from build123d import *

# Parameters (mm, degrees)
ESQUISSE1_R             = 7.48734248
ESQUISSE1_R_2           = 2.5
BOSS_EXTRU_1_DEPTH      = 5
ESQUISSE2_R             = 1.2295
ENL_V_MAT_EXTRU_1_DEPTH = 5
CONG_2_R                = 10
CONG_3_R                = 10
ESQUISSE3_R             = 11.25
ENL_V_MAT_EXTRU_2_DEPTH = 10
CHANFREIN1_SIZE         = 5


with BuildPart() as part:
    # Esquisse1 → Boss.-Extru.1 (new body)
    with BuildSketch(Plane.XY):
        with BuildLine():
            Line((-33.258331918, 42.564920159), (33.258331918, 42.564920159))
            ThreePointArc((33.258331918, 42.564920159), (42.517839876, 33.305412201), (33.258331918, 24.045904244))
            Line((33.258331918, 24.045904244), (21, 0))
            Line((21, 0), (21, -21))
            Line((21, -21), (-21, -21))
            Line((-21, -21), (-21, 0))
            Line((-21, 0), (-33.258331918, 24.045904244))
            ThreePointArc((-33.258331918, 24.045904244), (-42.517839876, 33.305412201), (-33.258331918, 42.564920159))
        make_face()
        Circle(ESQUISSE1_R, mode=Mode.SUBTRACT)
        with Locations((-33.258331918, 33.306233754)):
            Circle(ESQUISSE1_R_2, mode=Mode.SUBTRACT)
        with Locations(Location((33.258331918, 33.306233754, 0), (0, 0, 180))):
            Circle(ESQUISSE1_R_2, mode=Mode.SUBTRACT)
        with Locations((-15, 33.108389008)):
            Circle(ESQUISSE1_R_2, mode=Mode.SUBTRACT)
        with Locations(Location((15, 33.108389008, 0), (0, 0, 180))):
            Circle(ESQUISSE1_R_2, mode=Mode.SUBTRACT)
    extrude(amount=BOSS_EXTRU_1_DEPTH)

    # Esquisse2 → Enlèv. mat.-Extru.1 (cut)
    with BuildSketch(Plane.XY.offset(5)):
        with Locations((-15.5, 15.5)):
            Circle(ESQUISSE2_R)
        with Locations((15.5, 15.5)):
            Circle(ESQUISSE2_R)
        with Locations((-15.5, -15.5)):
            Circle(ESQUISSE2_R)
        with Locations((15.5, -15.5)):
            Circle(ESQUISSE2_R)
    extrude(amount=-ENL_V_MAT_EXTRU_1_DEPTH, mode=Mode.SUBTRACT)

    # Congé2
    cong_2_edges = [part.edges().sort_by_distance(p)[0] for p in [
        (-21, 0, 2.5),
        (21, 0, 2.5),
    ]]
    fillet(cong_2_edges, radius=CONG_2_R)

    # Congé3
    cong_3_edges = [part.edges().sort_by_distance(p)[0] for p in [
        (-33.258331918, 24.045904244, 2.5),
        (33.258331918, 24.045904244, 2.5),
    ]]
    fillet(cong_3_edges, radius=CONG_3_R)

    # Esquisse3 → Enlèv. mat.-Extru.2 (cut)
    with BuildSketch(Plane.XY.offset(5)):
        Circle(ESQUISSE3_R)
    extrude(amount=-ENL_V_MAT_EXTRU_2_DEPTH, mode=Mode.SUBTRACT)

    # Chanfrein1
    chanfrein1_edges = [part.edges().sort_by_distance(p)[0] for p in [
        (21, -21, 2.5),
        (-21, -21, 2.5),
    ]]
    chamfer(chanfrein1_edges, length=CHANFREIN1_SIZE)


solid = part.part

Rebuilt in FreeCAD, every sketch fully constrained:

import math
import FreeCAD as App
import Part
import Sketcher

V = App.Vector
Q = App.Units.Quantity


def edges_at(feature, points):
    """Names of the edges that pass closest to the given points."""
    edges = feature.Shape.Edges
    near = lambda p: min(range(len(edges)), key=lambda i: edges[i].distToShape(Part.Vertex(*p))[0])
    return sorted({f"Edge{near(p) + 1}" for p in points})

doc = App.newDocument("Part")
body = doc.addObject("PartDesign::Body", "Body")

# Sketch on XY plane
sketch1 = doc.addObject("Sketcher::SketchObject", "Sketch")
body.addObject(sketch1)
sketch1.AttachmentSupport = (doc.XY_Plane, [""])
sketch1.MapMode = "FlatFace"
sketch1.addGeometry([
    Part.LineSegment(V(33.258332, 42.56492, 0), V(-33.258332, 42.56492, 0)),  # 0
    Part.ArcOfCircle(Part.Circle(V(-33.258332, 33.305412, 0), V(0, 0, 1), 9.259508), math.radians(90), math.radians(270)),  # 1
    Part.LineSegment(V(-33.258332, 24.045904, 0), V(-21, 0, 0)),  # 2
    Part.LineSegment(V(-21, 0, 0), V(-21, -21, 0)),  # 3
    Part.LineSegment(V(-21, -21, 0), V(21, -21, 0)),  # 4
    Part.LineSegment(V(21, -21, 0), V(21, 0, 0)),  # 5
    Part.LineSegment(V(21, 0, 0), V(33.258332, 24.045904, 0)),  # 6
    Part.ArcOfCircle(Part.Circle(V(33.258332, 33.305412, 0), V(0, 0, 1), 9.259508), math.radians(-90), math.radians(90)),  # 7
    Part.Circle(V(0, 0, 0), V(0, 0, 1), 7.487342),  # 8
    Part.Circle(V(33.258332, 33.306234, 0), V(0, 0, 1), 2.5),  # 9
    Part.Circle(V(15, 33.108389, 0), V(0, 0, 1), 2.5),  # 10
    Part.Circle(V(-15, 33.108389, 0), V(0, 0, 1), 2.5),  # 11
    Part.Circle(V(-33.258332, 33.306234, 0), V(0, 0, 1), 2.5),  # 12
], False)
sketch1.addConstraint([
    Sketcher.Constraint("Tangent", 0, 2, 1, 1),
    Sketcher.Constraint("Coincident", 1, 2, 2, 1),
    Sketcher.Constraint("Coincident", 2, 2, 3, 1),
    Sketcher.Constraint("Coincident", 3, 2, 4, 1),
    Sketcher.Constraint("Coincident", 4, 2, 5, 1),
    Sketcher.Constraint("Coincident", 5, 2, 6, 1),
    Sketcher.Constraint("Coincident", 6, 2, 7, 1),
    Sketcher.Constraint("Tangent", 7, 2, 0, 1),
    Sketcher.Constraint("Horizontal", 0),
    Sketcher.Constraint("Vertical", 3),
    Sketcher.Constraint("Horizontal", 4),
    Sketcher.Constraint("Vertical", 5),
    Sketcher.Constraint("Coincident", 8, 3, -1, 1),
    Sketcher.Constraint("Equal", 1, 7),
    Sketcher.Constraint("Equal", 9, 10),
    Sketcher.Constraint("Equal", 10, 11),
    Sketcher.Constraint("Equal", 11, 12),
    Sketcher.Constraint("Symmetric", 2, 2, 5, 2, -1, 1),
    Sketcher.Constraint("Symmetric", 10, 3, 11, 3, -2),
    Sketcher.Constraint("Symmetric", 9, 3, 12, 3, -2),
    Sketcher.Constraint("PointOnObject", 2, 2, -1),
    Sketcher.Constraint("Vertical", 7, 3, 9, 3),
    Sketcher.Constraint("Vertical", 1, 3, 12, 3),
    Sketcher.Constraint("Vertical", 0, 2, 1, 2),
    Sketcher.Constraint("Vertical", 9, 3, 6, 2),
    Sketcher.Constraint("Diameter", 9, Q("5 mm")),
    Sketcher.Constraint("DistanceX", 4, 1, 4, 2, Q("42 mm")),
    Sketcher.Constraint("DistanceY", 3, 2, 3, 1, Q("21 mm")),
    Sketcher.Constraint("DistanceX", -1, 1, 10, 3, Q("15 mm")),
    Sketcher.Constraint("Diameter", 8, Q("14.974685 mm")),
    Sketcher.Constraint("Radius", 1, Q("9.259508 mm")),
    Sketcher.Constraint("DistanceX", 0, 2, 0, 1, Q("66.516664 mm")),
    Sketcher.Constraint("DistanceY", -1, 1, 10, 3, Q("33.108389 mm")),
    Sketcher.Constraint("DistanceY", -1, 1, 0, 2, Q("42.56492 mm")),
    Sketcher.Constraint("DistanceY", 7, 3, 9, 3, Q("0.000822 mm")),
])
pad1 = doc.addObject("PartDesign::Pad", "Pad")
body.addObject(pad1)
pad1.Profile = sketch1
pad1.Length = 5

# Sketch on XY plane
sketch2 = doc.addObject("Sketcher::SketchObject", "Sketch001")
body.addObject(sketch2)
sketch2.AttachmentSupport = (doc.XY_Plane, [""])
sketch2.MapMode = "FlatFace"
sketch2.AttachmentOffset = App.Placement(V(0, 0, 5), App.Rotation())
sketch2.addGeometry([
    Part.Circle(V(-15.5, 15.5, 0), V(0, 0, 1), 1.2295),
    Part.Circle(V(15.5, 15.5, 0), V(0, 0, 1), 1.2295),
    Part.Circle(V(-15.5, -15.5, 0), V(0, 0, 1), 1.2295),
    Part.Circle(V(15.5, -15.5, 0), V(0, 0, 1), 1.2295),
], False)
sketch2.addConstraint([
    Sketcher.Constraint("Equal", 0, 1),
    Sketcher.Constraint("Equal", 1, 2),
    Sketcher.Constraint("Equal", 2, 3),
    Sketcher.Constraint("Symmetric", 1, 3, 2, 3, -1, 1),
    Sketcher.Constraint("Symmetric", 0, 3, 3, 3, -1, 1),
    Sketcher.Constraint("Symmetric", 0, 3, 1, 3, -2),
    Sketcher.Constraint("Diameter", 0, Q("2.459 mm")),
    Sketcher.Constraint("DistanceX", 0, 3, 1, 3, Q("31 mm")),
    Sketcher.Constraint("DistanceY", 2, 3, 0, 3, Q("31 mm")),
])
pocket1 = doc.addObject("PartDesign::Pocket", "Pocket")
body.addObject(pocket1)
pocket1.Profile = sketch2
pocket1.Length = 5
doc.recompute()

fillet = doc.addObject("PartDesign::Fillet", "Fillet")
body.addObject(fillet)
fillet.Base = (pocket1, edges_at(pocket1, [(-21, 0, 2.5), (21, 0, 2.5)]))
fillet.Radius = 10
doc.recompute()

fillet2 = doc.addObject("PartDesign::Fillet", "Fillet001")
body.addObject(fillet2)
fillet2.Base = (fillet, edges_at(fillet, [(-33.258, 24.046, 2.5), (33.258, 24.046, 2.5)]))
fillet2.Radius = 10

# Sketch on XY plane
sketch3 = doc.addObject("Sketcher::SketchObject", "Sketch002")
body.addObject(sketch3)
sketch3.AttachmentSupport = (doc.XY_Plane, [""])
sketch3.MapMode = "FlatFace"
sketch3.AttachmentOffset = App.Placement(V(0, 0, 5), App.Rotation())
sketch3.addGeometry(Part.Circle(V(0, 0, 0), V(0, 0, 1), 11.25), False)
sketch3.addConstraint([
    Sketcher.Constraint("Coincident", 0, 3, -1, 1),
    Sketcher.Constraint("Diameter", 0, Q("22.5 mm")),
])
pocket2 = doc.addObject("PartDesign::Pocket", "Pocket001")
body.addObject(pocket2)
pocket2.Profile = sketch3
pocket2.Length = 10
doc.recompute()

chamfer = doc.addObject("PartDesign::Chamfer", "Chamfer")
body.addObject(chamfer)
chamfer.Base = (pocket2, edges_at(pocket2, [(21, -21, 2.5), (-21, -21, 2.5)]))
chamfer.Size = 5

doc.recompute()
